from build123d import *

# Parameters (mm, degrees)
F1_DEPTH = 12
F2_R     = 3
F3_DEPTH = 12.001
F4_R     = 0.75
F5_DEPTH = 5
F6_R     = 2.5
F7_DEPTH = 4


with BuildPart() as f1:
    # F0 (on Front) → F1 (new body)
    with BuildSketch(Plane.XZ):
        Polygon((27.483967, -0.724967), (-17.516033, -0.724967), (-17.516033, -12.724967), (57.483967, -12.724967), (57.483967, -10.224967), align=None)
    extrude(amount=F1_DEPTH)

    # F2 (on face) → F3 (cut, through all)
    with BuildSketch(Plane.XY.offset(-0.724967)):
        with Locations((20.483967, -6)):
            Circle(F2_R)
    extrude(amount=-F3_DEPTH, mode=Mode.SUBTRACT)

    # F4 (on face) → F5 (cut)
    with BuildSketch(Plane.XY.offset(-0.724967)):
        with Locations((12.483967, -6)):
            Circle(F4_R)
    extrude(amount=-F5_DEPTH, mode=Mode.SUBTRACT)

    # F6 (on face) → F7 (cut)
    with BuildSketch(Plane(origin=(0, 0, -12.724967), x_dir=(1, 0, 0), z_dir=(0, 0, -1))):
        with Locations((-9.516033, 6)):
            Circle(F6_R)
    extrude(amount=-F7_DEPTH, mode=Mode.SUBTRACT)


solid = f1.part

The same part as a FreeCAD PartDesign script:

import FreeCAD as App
import Part
import Sketcher
from FreeCAD import Vector

doc = App.newDocument("Part")
body = doc.addObject("PartDesign::Body", "Body")

sketch1 = body.newObject("Sketcher::SketchObject", "Sketch")
sketch1.AttachmentSupport = (doc.getObject("XZ_Plane"), [""])
sketch1.MapMode = "FlatFace"
sketch1.addGeometry([
    Part.LineSegment(Vector(27.5, -0.7, 0), Vector(-17.5, -0.7, 0)),
    Part.LineSegment(Vector(-17.5, -0.7, 0), Vector(-17.5, -12.7, 0)),
    Part.LineSegment(Vector(-17.5, -12.7, 0), Vector(57.5, -12.7, 0)),
    Part.LineSegment(Vector(57.5, -12.7, 0), Vector(57.5, -10.2, 0)),
    Part.LineSegment(Vector(57.5, -10.2, 0), Vector(27.5, -0.7, 0)),
], False)
sketch1.addConstraint([
    Sketcher.Constraint("Coincident", 0, 2, 1, 1),
    Sketcher.Constraint("Coincident", 1, 2, 2, 1),
    Sketcher.Constraint("Coincident", 2, 2, 3, 1),
    Sketcher.Constraint("Coincident", 3, 2, 4, 1),
    Sketcher.Constraint("Coincident", 4, 2, 0, 1),
    Sketcher.Constraint("Horizontal", 0),
    Sketcher.Constraint("Vertical", 1),
    Sketcher.Constraint("Horizontal", 2),
    Sketcher.Constraint("Vertical", 3),
    Sketcher.Constraint("DistanceX", 0, 2, 0, 1, 45.0),
    Sketcher.Constraint("DistanceX", 2, 1, 2, 2, 75.0),
    Sketcher.Constraint("DistanceY", 1, 2, 1, 1, 12.0),
    Sketcher.Constraint("DistanceY", 3, 1, 3, 2, 2.5),
    Sketcher.Constraint("DistanceX", 0, 2, -1, 1, 17.516033),
    Sketcher.Constraint("DistanceY", 0, 2, -1, 1, 0.724967),
])
pad1 = body.newObject("PartDesign::Pad", "Pad")
pad1.Profile = sketch1
pad1.Length = 12

sketch2 = body.newObject("Sketcher::SketchObject", "Sketch001")
sketch2.AttachmentSupport = (doc.getObject("XY_Plane"), [""])
sketch2.MapMode = "FlatFace"
sketch2.AttachmentOffset = App.Placement(Vector(0, 0, -0.724967), App.Rotation())
sketch2.addGeometry(Part.Circle(Vector(20.5, -6, 0), Vector(0, 0, 1), 3), False)
sketch2.addConstraint([
    Sketcher.Constraint("Diameter", 0, 6.0),
    Sketcher.Constraint("DistanceY", 0, 3, -1, 1, 6.0),
    Sketcher.Constraint("DistanceX", -1, 1, 0, 3, 20.483967),
])
pocket1 = body.newObject("PartDesign::Pocket", "Pocket")
pocket1.Profile = sketch2
pocket1.Type = "ThroughAll"

sketch3 = body.newObject("Sketcher::SketchObject", "Sketch002")
sketch3.AttachmentSupport = (doc.getObject("XY_Plane"), [""])
sketch3.MapMode = "FlatFace"
sketch3.AttachmentOffset = App.Placement(Vector(0, 0, -0.724967), App.Rotation())
sketch3.addGeometry(Part.Circle(Vector(12.5, -6, 0), Vector(0, 0, 1), 0.8), False)
sketch3.addConstraint([
    Sketcher.Constraint("Diameter", 0, 1.5),
    Sketcher.Constraint("DistanceY", 0, 3, -1, 1, 6.0),
    Sketcher.Constraint("DistanceX", -1, 1, 0, 3, 12.483967),
])
pocket2 = body.newObject("PartDesign::Pocket", "Pocket001")
pocket2.Profile = sketch3
pocket2.Length = 5

sketch4 = body.newObject("Sketcher::SketchObject", "Sketch003")
sketch4.AttachmentSupport = (doc.getObject("XY_Plane"), [""])
sketch4.MapMode = "FlatFace"
sketch4.AttachmentOffset = App.Placement(Vector(0, 0, -12.724967), App.Rotation())
sketch4.addGeometry(Part.Circle(Vector(-9.5, -6, 0), Vector(0, 0, 1), 2.5), False)
sketch4.addConstraint([
    Sketcher.Constraint("Diameter", 0, 5.0),
    Sketcher.Constraint("DistanceY", 0, 3, -1, 1, 6.0),
    Sketcher.Constraint("DistanceX", 0, 3, -1, 1, 9.516033),
])
pocket3 = body.newObject("PartDesign::Pocket", "Pocket002")
pocket3.Profile = sketch4
pocket3.Length = 4
pocket3.Reversed = True

doc.recompute()
